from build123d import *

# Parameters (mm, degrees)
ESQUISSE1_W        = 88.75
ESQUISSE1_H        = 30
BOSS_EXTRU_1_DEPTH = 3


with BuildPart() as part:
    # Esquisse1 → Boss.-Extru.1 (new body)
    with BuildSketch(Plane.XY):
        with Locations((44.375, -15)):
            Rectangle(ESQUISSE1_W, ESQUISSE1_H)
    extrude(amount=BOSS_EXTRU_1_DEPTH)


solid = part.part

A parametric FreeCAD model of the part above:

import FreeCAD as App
import Part
import Sketcher

V = App.Vector

doc = App.newDocument("Part")
params = doc.addObject("Spreadsheet::Sheet", "Params")
for row, (alias, value) in enumerate([
    ("sketch1_height", "30 mm"),
    ("sketch1_width", "88.75 mm"),
    ("pad1_length", "3 mm"),
], start=1):
    params.set(f"A{row}", alias)
    params.set(f"B{row}", "=" + value)
    params.setAlias(f"B{row}", alias)

body = doc.addObject("PartDesign::Body", "Body")

# Sketch on XY plane
sketch1 = body.newObject("Sketcher::SketchObject", "Sketch")
sketch1.AttachmentSupport = (doc.getObject("XY_Plane"), [""])
sketch1.MapMode = "FlatFace"
sketch1.addGeometry([
    Part.LineSegment(V(0, 0, 0), V(0, -30, 0)),
    Part.LineSegment(V(0, -30, 0), V(89, -30, 0)),
    Part.LineSegment(V(89, -30, 0), V(89, 0, 0)),
    Part.LineSegment(V(89, 0, 0), V(0, 0, 0)),
], False)
sketch1.addConstraint([
    Sketcher.Constraint("Coincident", 0, 2, 1, 1),
    Sketcher.Constraint("Coincident", 1, 2, 2, 1),
    Sketcher.Constraint("Coincident", 2, 2, 3, 1),
    Sketcher.Constraint("Coincident", 3, 2, 0, 1),
    Sketcher.Constraint("Vertical", 0),
    Sketcher.Constraint("Horizontal", 1),
    Sketcher.Constraint("Vertical", 2),
    Sketcher.Constraint("Horizontal", 3),
    Sketcher.Constraint("Coincident", 3, 2, -1, 1),
    Sketcher.Constraint("DistanceY", 0, 2, 0, 1, 30.0),
    Sketcher.Constraint("DistanceX", 1, 1, 1, 2, 88.75),
])
sketch1.setExpression("Constraints[9]", "Params.sketch1_height")
sketch1.setExpression("Constraints[10]", "Params.sketch1_width")
pad1 = body.newObject("PartDesign::Pad", "Pad")
pad1.Profile = sketch1
pad1.setExpression("Length", "Params.pad1_length")

doc.recompute()
